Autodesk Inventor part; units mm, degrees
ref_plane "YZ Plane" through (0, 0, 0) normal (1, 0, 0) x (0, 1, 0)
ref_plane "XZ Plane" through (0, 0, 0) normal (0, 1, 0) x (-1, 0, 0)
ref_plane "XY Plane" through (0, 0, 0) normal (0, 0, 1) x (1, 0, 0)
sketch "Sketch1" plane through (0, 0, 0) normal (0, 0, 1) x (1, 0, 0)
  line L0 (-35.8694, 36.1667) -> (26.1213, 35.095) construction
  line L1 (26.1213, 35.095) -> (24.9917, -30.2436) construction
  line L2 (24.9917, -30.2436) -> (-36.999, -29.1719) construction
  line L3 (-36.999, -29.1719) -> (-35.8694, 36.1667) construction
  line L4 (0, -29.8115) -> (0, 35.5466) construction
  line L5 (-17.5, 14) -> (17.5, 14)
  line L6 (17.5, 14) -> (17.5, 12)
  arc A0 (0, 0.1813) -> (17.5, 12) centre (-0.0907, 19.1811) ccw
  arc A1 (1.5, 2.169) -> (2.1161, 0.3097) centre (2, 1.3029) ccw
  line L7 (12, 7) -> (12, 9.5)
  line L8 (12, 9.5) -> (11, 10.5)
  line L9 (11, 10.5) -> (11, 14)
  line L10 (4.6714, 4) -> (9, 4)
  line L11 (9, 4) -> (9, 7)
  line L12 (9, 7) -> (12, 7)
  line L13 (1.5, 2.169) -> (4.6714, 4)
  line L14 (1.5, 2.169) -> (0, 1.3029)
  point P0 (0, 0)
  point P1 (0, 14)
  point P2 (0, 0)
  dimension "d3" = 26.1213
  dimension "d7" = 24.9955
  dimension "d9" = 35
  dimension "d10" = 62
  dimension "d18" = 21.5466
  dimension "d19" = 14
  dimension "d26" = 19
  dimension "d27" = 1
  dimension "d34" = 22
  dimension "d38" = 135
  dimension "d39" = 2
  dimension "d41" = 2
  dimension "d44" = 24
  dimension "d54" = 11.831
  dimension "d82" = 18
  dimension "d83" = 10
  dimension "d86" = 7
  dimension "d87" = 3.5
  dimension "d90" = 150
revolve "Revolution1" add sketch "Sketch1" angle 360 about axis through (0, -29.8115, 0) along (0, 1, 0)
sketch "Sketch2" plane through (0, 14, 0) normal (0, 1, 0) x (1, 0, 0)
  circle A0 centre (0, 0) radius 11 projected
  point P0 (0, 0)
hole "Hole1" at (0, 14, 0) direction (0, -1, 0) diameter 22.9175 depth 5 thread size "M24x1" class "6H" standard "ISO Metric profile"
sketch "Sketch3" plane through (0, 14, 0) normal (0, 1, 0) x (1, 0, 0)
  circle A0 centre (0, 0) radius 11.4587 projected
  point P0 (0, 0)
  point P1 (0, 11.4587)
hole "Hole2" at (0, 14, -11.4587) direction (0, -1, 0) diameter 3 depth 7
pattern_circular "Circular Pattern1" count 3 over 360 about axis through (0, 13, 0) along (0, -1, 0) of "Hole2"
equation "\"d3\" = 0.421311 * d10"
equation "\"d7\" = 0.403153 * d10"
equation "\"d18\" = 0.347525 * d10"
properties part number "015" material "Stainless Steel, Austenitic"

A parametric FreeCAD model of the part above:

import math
import FreeCAD as App
import Part
import Sketcher
Q = App.Units.Quantity

doc = App.newDocument("Part")
params = doc.addObject("Spreadsheet::Sheet", "Params")
for row, (alias, value) in enumerate([
    ("sketch1_radius", "1 mm"),
    ("sketch1_radius2", "19 mm"),
    ("sketch1_height", "2 mm"),
    ("sketch1_height2", "3.5 mm"),
    ("sketch1_width", "6.5 mm"),
    ("revolution_angle", "360 deg"),
    ("hole_diameter", "22.9175 mm"),
    ("hole_depth", "5 mm"),
    ("sketch3_diameter", "3 mm"),
    ("hole2_diameter", "3 mm"),
    ("hole2_depth", "7 mm"),
], start=1):
    params.set(f"A{row}", alias)
    params.set(f"B{row}", "=" + value)
    params.setAlias(f"B{row}", alias)

body = doc.addObject("PartDesign::Body", "Body")

# Sketch on XY plane
sketch1 = body.newObject("Sketcher::SketchObject", "Sketch")
sketch1.AttachmentSupport = (doc.getObject("XY_Plane"), [""])
sketch1.MapMode = "FlatFace"
sketch1.addGeometry(Part.LineSegment(App.Vector(17.5, 14, 0), App.Vector(11, 14, 0)), False)
sketch1.addGeometry(Part.LineSegment(App.Vector(11, 14, 0), App.Vector(11, 10.5, 0)), False)
sketch1.addGeometry(Part.LineSegment(App.Vector(11, 10.5, 0), App.Vector(12, 9.5, 0)), False)
sketch1.addGeometry(Part.LineSegment(App.Vector(12, 9.5, 0), App.Vector(12, 7, 0)), False)
sketch1.addGeometry(Part.LineSegment(App.Vector(12, 7, 0), App.Vector(9, 7, 0)), False)
sketch1.addGeometry(Part.LineSegment(App.Vector(9, 7, 0), App.Vector(9, 4, 0)), False)
sketch1.addGeometry(Part.LineSegment(App.Vector(9, 4, 0), App.Vector(4.7, 4, 0)), False)
sketch1.addGeometry(Part.LineSegment(App.Vector(4.7, 4, 0), App.Vector(1.5, 2.2, 0)), False)
sketch1.addGeometry(Part.ArcOfCircle(Part.Circle(App.Vector(2, 1.3, 0), App.Vector(0, 0, 1), 1), math.radians(120), math.radians(277)), False)
sketch1.addGeometry(Part.ArcOfCircle(Part.Circle(App.Vector(-0.1, 19.2, 0), App.Vector(0, 0, 1), 19), math.radians(-83), math.radians(-22)), False)
sketch1.addGeometry(Part.LineSegment(App.Vector(17.5, 12, 0), App.Vector(17.5, 14, 0)), False)
sketch1.addConstraint(Sketcher.Constraint("Coincident", 0, 2, 1, 1))
sketch1.addConstraint(Sketcher.Constraint("Coincident", 1, 2, 2, 1))
sketch1.addConstraint(Sketcher.Constraint("Coincident", 2, 2, 3, 1))
sketch1.addConstraint(Sketcher.Constraint("Coincident", 3, 2, 4, 1))
sketch1.addConstraint(Sketcher.Constraint("Coincident", 4, 2, 5, 1))
sketch1.addConstraint(Sketcher.Constraint("Coincident", 5, 2, 6, 1))
sketch1.addConstraint(Sketcher.Constraint("Coincident", 6, 2, 7, 1))
sketch1.addConstraint(Sketcher.Constraint("Tangent", 7, 2, 8, 1))
sketch1.addConstraint(Sketcher.Constraint("Tangent", 8, 2, 9, 1))
sketch1.addConstraint(Sketcher.Constraint("Coincident", 9, 2, 10, 1))
sketch1.addConstraint(Sketcher.Constraint("Coincident", 10, 2, 0, 1))
sketch1.addConstraint(Sketcher.Constraint("Horizontal", 0))
sketch1.addConstraint(Sketcher.Constraint("Vertical", 1))
sketch1.addConstraint(Sketcher.Constraint("Vertical", 3))
sketch1.addConstraint(Sketcher.Constraint("Horizontal", 4))
sketch1.addConstraint(Sketcher.Constraint("Vertical", 5))
sketch1.addConstraint(Sketcher.Constraint("Horizontal", 6))
sketch1.addConstraint(Sketcher.Constraint("Vertical", 10))
sketch1.addConstraint(Sketcher.Constraint("Equal", 4, 5))
sketch1.addConstraint(Sketcher.Constraint("Radius", 8, Q("1 mm")))
sketch1.addConstraint(Sketcher.Constraint("Radius", 9, Q("19 mm")))
sketch1.addConstraint(Sketcher.Constraint("DistanceY", 10, 1, 10, 2, Q("2 mm")))
sketch1.addConstraint(Sketcher.Constraint("Angle", 7, Q("-150 deg")))
sketch1.addConstraint(Sketcher.Constraint("DistanceY", 1, 2, 1, 1, Q("3.5 mm")))
sketch1.addConstraint(Sketcher.Constraint("DistanceX", -1, 1, 8, 3, Q("2 mm")))
sketch1.addConstraint(Sketcher.Constraint("DistanceY", -1, 1, 0, 2, Q("14 mm")))
sketch1.addConstraint(Sketcher.Constraint("DistanceY", -1, 1, 3, 2, Q("7 mm")))
sketch1.addConstraint(Sketcher.Constraint("DistanceX", 1, 2, 2, 2, Q("1 mm")))
sketch1.addConstraint(Sketcher.Constraint("DistanceY", 2, 2, 1, 2, Q("1 mm")))
sketch1.addConstraint(Sketcher.Constraint("DistanceX", 8, 3, 2, 2, Q("10 mm")))
sketch1.addConstraint(Sketcher.Constraint("DistanceX", 4, 2, 1, 2, Q("2 mm")))
sketch1.addConstraint(Sketcher.Constraint("DistanceX", 0, 2, 0, 1, Q("6.5 mm")))
sketch1.addConstraint(Sketcher.Constraint("Distance", 7, Q("3.662 mm")))
sketch1.setExpression("Constraints[19]", "Params.sketch1_radius")
sketch1.setExpression("Constraints[20]", "Params.sketch1_radius2")
sketch1.setExpression("Constraints[21]", "Params.sketch1_height")
sketch1.setExpression("Constraints[23]", "Params.sketch1_height2")
sketch1.setExpression("Constraints[31]", "Params.sketch1_width")
revolution = body.newObject("PartDesign::Revolution", "Revolution")
revolution.Profile = sketch1
revolution.ReferenceAxis = (sketch1, ["V_Axis"])
revolution.setExpression("Angle", "Params.revolution_angle")

# Sketch on XZ plane
sketch2 = body.newObject("Sketcher::SketchObject", "Sketch001")
sketch2.AttachmentSupport = (doc.getObject("XZ_Plane"), [""])
sketch2.MapMode = "FlatFace"
sketch2.AttachmentOffset = App.Placement(App.Vector(0, 0, -14), App.Rotation())
sketch2.addGeometry(Part.Circle(App.Vector(0, 0, 0), App.Vector(0, 0, 1), 11), False)
sketch2.addConstraint(Sketcher.Constraint("Coincident", 0, 3, -1, 1))
sketch2.addConstraint(Sketcher.Constraint("Diameter", 0, Q("22.9175 mm")))
doc.recompute()
hole = body.newObject("PartDesign::Hole", "Hole")
hole.Profile = sketch2
hole.ThreadType = "None"
hole.setExpression("Diameter", "Params.hole_diameter")
hole.DepthType = "Dimension"
hole.setExpression("Depth", "Params.hole_depth")
hole.DrillPoint = "Flat"
hole.Reversed = True

# Sketch on XZ plane
sketch3 = body.newObject("Sketcher::SketchObject", "Sketch002")
sketch3.AttachmentSupport = (doc.getObject("XZ_Plane"), [""])
sketch3.MapMode = "FlatFace"
sketch3.AttachmentOffset = App.Placement(App.Vector(0, 0, -14), App.Rotation())
sketch3.addGeometry(Part.Circle(App.Vector(0, -11.5, 0), App.Vector(0, 0, 1), 1.5), False)
sketch3.addConstraint(Sketcher.Constraint("PointOnObject", 0, 3, -2))
sketch3.addConstraint(Sketcher.Constraint("Diameter", 0, Q("3 mm")))
sketch3.addConstraint(Sketcher.Constraint("DistanceY", 0, 3, -1, 1, Q("11.4587 mm")))
sketch3.setExpression("Constraints[1]", "Params.sketch3_diameter")
doc.recompute()
hole2 = body.newObject("PartDesign::Hole", "Hole001")
hole2.Profile = sketch3
hole2.ThreadType = "None"
hole2.setExpression("Diameter", "Params.hole2_diameter")
hole2.DepthType = "Dimension"
hole2.setExpression("Depth", "Params.hole2_depth")
hole2.DrillPoint = "Flat"
hole2.Reversed = True
doc.recompute()

polarpattern = body.newObject("PartDesign::PolarPattern", "PolarPattern")
polarpattern.Originals = [hole2]
polarpattern.Axis = (doc.getObject("Y_Axis"), [""])
polarpattern.Angle = 360
polarpattern.Occurrences = 3
body.Tip = polarpattern

doc.recompute()
